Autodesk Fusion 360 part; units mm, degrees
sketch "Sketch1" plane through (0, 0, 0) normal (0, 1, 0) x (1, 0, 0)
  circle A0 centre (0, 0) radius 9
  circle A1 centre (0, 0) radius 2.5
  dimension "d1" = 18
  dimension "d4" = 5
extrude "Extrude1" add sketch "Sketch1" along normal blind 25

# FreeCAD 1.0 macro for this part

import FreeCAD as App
import Part
import Sketcher

V = App.Vector

doc = App.newDocument("Part")
body = doc.addObject("PartDesign::Body", "Body")

# Sketch on XZ plane
sketch1 = doc.addObject("Sketcher::SketchObject", "Sketch")
body.addObject(sketch1)
sketch1.AttachmentSupport = (doc.XZ_Plane, [""])
sketch1.MapMode = "FlatFace"
sketch1.addGeometry(Part.Circle(V(0, 0, 0), V(0, 0, 1), 9), False)
sketch1.addGeometry(Part.Circle(V(0, 0, 0), V(0, 0, 1), 2.5), False)
sketch1.addConstraint(Sketcher.Constraint("Coincident", 0, 3, -1, 1))
sketch1.addConstraint(Sketcher.Constraint("Coincident", 1, 3, -1, 1))
sketch1.addConstraint(Sketcher.Constraint("Diameter", 0, 18.0))
sketch1.addConstraint(Sketcher.Constraint("Diameter", 1, 5.0))
pad1 = doc.addObject("PartDesign::Pad", "Pad")
body.addObject(pad1)
pad1.Profile = sketch1
pad1.Length = 25
pad1.Reversed = True

doc.recompute()
